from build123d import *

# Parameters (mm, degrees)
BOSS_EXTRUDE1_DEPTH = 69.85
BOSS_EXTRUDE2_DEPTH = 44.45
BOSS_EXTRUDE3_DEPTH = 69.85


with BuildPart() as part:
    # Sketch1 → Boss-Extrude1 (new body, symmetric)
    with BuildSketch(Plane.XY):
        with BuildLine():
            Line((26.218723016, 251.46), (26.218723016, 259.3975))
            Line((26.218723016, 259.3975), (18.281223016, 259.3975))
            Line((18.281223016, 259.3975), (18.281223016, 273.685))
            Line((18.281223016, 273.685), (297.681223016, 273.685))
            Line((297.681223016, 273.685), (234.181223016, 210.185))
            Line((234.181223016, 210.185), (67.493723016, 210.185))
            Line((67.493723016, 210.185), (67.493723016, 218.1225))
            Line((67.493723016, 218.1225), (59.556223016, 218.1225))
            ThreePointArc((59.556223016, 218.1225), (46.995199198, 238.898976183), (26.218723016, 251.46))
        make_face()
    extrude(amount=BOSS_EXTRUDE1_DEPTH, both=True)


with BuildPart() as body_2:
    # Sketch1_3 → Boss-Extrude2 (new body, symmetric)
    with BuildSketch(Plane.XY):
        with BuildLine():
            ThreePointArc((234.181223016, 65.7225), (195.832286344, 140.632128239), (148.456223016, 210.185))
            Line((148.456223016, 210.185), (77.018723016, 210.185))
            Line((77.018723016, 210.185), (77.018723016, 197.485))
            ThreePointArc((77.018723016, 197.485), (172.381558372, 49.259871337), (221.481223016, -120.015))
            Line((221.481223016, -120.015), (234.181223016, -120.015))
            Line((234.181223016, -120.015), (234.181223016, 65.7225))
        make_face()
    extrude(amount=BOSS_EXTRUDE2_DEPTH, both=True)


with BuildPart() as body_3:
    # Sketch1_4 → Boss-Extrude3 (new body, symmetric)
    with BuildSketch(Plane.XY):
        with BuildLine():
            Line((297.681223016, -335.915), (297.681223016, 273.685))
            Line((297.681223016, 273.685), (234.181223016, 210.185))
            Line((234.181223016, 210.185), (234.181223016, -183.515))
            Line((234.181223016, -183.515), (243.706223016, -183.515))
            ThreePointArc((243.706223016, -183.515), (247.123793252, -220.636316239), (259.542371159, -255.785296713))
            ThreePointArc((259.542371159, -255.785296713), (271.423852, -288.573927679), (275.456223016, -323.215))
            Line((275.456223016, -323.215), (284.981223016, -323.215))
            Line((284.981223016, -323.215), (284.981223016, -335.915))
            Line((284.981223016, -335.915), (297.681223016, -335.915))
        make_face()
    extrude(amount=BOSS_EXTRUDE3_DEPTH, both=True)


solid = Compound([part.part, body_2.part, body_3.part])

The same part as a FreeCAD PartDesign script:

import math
import FreeCAD as App
import Part
import Sketcher

V = App.Vector
Q = App.Units.Quantity

doc = App.newDocument("Part")
body = doc.addObject("PartDesign::Body", "Body")

# Sketch on XY plane
sketch1 = body.newObject("Sketcher::SketchObject", "Sketch")
sketch1.AttachmentSupport = (doc.getObject("XY_Plane"), [""])
sketch1.MapMode = "FlatFace"
sketch1.addGeometry(Part.LineSegment(V(26, 259, 0), V(26, 251, 0)), False)
sketch1.addGeometry(Part.ArcOfCircle(Part.Circle(V(11, 203, 0), V(0, 0, 1), 51), math.radians(17), math.radians(73)), False)
sketch1.addGeometry(Part.LineSegment(V(60, 218, 0), V(67, 218, 0)), False)
sketch1.addGeometry(Part.LineSegment(V(67, 218, 0), V(67, 210, 0)), False)
sketch1.addGeometry(Part.LineSegment(V(67, 210, 0), V(234, 210, 0)), False)
sketch1.addGeometry(Part.LineSegment(V(234, 210, 0), V(298, 274, 0)), False)
sketch1.addGeometry(Part.LineSegment(V(298, 274, 0), V(18, 274, 0)), False)
sketch1.addGeometry(Part.LineSegment(V(18, 274, 0), V(18, 259, 0)), False)
sketch1.addGeometry(Part.LineSegment(V(18, 259, 0), V(26, 259, 0)), False)
sketch1.addConstraint(Sketcher.Constraint("Coincident", 0, 2, 1, 2))
sketch1.addConstraint(Sketcher.Constraint("Coincident", 1, 1, 2, 1))
sketch1.addConstraint(Sketcher.Constraint("Coincident", 2, 2, 3, 1))
sketch1.addConstraint(Sketcher.Constraint("Coincident", 3, 2, 4, 1))
sketch1.addConstraint(Sketcher.Constraint("Coincident", 4, 2, 5, 1))
sketch1.addConstraint(Sketcher.Constraint("Coincident", 5, 2, 6, 1))
sketch1.addConstraint(Sketcher.Constraint("Coincident", 6, 2, 7, 1))
sketch1.addConstraint(Sketcher.Constraint("Coincident", 7, 2, 8, 1))
sketch1.addConstraint(Sketcher.Constraint("Coincident", 8, 2, 0, 1))
sketch1.addConstraint(Sketcher.Constraint("Vertical", 0))
sketch1.addConstraint(Sketcher.Constraint("Horizontal", 2))
sketch1.addConstraint(Sketcher.Constraint("Vertical", 3))
sketch1.addConstraint(Sketcher.Constraint("Horizontal", 4))
sketch1.addConstraint(Sketcher.Constraint("Horizontal", 6))
sketch1.addConstraint(Sketcher.Constraint("Vertical", 7))
sketch1.addConstraint(Sketcher.Constraint("Horizontal", 8))
sketch1.addConstraint(Sketcher.Constraint("Equal", 2, 8))
sketch1.addConstraint(Sketcher.Constraint("Equal", 8, 0))
sketch1.addConstraint(Sketcher.Constraint("Equal", 0, 3))
sketch1.addConstraint(Sketcher.Constraint("DistanceX", 6, 2, 6, 1, Q("11 in")))
sketch1.addConstraint(Sketcher.Constraint("Angle", 5, Q("45 deg")))
sketch1.addConstraint(Sketcher.Constraint("DistanceY", -1, 1, 0, 2, Q("9.9 in")))
sketch1.addConstraint(Sketcher.Constraint("DistanceX", 4, 2, 5, 2, Q("2.5 in")))
sketch1.addConstraint(Sketcher.Constraint("DistanceX", 2, 1, 2, 2, Q("0.3125 in")))
sketch1.addConstraint(Sketcher.Constraint("DistanceX", 4, 1, 4, 2, Q("6.5625 in")))
sketch1.addConstraint(Sketcher.Constraint("DistanceY", 7, 2, 7, 1, Q("0.5625 in")))
sketch1.addConstraint(Sketcher.Constraint("Radius", 1, Q("50.733412 mm")))
sketch1.addConstraint(Sketcher.Constraint("DistanceX", -1, 1, 1, 3, Q("11.12126 mm")))
pad1 = body.newObject("PartDesign::Pad", "Pad")
pad1.Profile = sketch1
pad1.Length = Q("5.5 in")
pad1.Midplane = True
body2 = doc.addObject("PartDesign::Body", "Body001")

# Sketch on XY plane
sketch2 = body2.newObject("Sketcher::SketchObject", "Sketch001")
sketch2.AttachmentSupport = (doc.getObject("XY_Plane001"), [""])
sketch2.MapMode = "FlatFace"
sketch2.addGeometry(Part.ArcOfCircle(Part.Circle(V(-384, -204, 0), V(0, 0, 1), 675), math.radians(23.53), math.radians(37.84)), False)
sketch2.addGeometry(Part.LineSegment(V(148, 210, 0), V(77, 210, 0)), False)
sketch2.addGeometry(Part.LineSegment(V(77, 210, 0), V(77, 197, 0)), False)
sketch2.addGeometry(Part.ArcOfCircle(Part.Circle(V(-384, -204, 0), V(0, 0, 1), 611), math.radians(8), math.radians(41)), False)
sketch2.addGeometry(Part.LineSegment(V(221, -120, 0), V(234, -120, 0)), False)
sketch2.addGeometry(Part.LineSegment(V(234, -120, 0), V(234, 66, 0)), False)
sketch2.addConstraint(Sketcher.Constraint("Coincident", 0, 2, 1, 1))
sketch2.addConstraint(Sketcher.Constraint("Coincident", 1, 2, 2, 1))
sketch2.addConstraint(Sketcher.Constraint("Coincident", 2, 2, 3, 2))
sketch2.addConstraint(Sketcher.Constraint("Coincident", 3, 1, 4, 1))
sketch2.addConstraint(Sketcher.Constraint("Coincident", 4, 2, 5, 1))
sketch2.addConstraint(Sketcher.Constraint("Coincident", 5, 2, 0, 1))
sketch2.addConstraint(Sketcher.Constraint("Horizontal", 1))
sketch2.addConstraint(Sketcher.Constraint("Vertical", 2))
sketch2.addConstraint(Sketcher.Constraint("Horizontal", 4))
sketch2.addConstraint(Sketcher.Constraint("Vertical", 5))
sketch2.addConstraint(Sketcher.Constraint("Equal", 4, 2))
sketch2.addConstraint(Sketcher.Constraint("DistanceX", 4, 1, 4, 2, Q("0.5 in")))
sketch2.addConstraint(Sketcher.Constraint("Radius", 0, Q("26.5625 in")))
sketch2.addConstraint(Sketcher.Constraint("Radius", 3, Q("24.0625 in")))
sketch2.addConstraint(Sketcher.Constraint("DistanceY", 4, 2, 1, 2, Q("13 in")))
sketch2.addConstraint(Sketcher.Constraint("DistanceX", 1, 2, 1, 1, Q("2.8125 in")))
sketch2.addConstraint(Sketcher.Constraint("DistanceY", 5, 1, 5, 2, Q("7.3125 in")))
sketch2.addConstraint(Sketcher.Constraint("DistanceY", -1, 1, 1, 2, Q("8.275 in")))
sketch2.addConstraint(Sketcher.Constraint("DistanceX", 2, 2, 3, 1, Q("5.6875 in")))
sketch2.addConstraint(Sketcher.Constraint("DistanceX", 0, 3, -1, 1, Q("384.388412 mm")))
pad2 = body2.newObject("PartDesign::Pad", "Pad001")
pad2.Profile = sketch2
pad2.Length = Q("3.5 in")
pad2.Midplane = True
body3 = doc.addObject("PartDesign::Body", "Body002")

# Sketch on XY plane
sketch3 = body3.newObject("Sketcher::SketchObject", "Sketch002")
sketch3.AttachmentSupport = (doc.getObject("XY_Plane002"), [""])
sketch3.MapMode = "FlatFace"
sketch3.addGeometry(Part.LineSegment(V(298, -336, 0), V(298, 274, 0)), False)
sketch3.addGeometry(Part.LineSegment(V(298, 274, 0), V(234, 210, 0)), False)
sketch3.addGeometry(Part.LineSegment(V(234, 210, 0), V(234, -184, 0)), False)
sketch3.addGeometry(Part.LineSegment(V(234, -184, 0), V(244, -184, 0)), False)
sketch3.addGeometry(Part.ArcOfCircle(Part.Circle(V(394, -188, 0), V(0, 0, 1), 151), math.radians(178), math.radians(207)), False)
sketch3.addGeometry(Part.ArcOfCircle(Part.Circle(V(125, -323, 0), V(0, 0, 1), 151), math.radians(0), math.radians(27)), False)
sketch3.addGeometry(Part.LineSegment(V(275, -323, 0), V(285, -323, 0)), False)
sketch3.addGeometry(Part.LineSegment(V(285, -323, 0), V(285, -336, 0)), False)
sketch3.addGeometry(Part.LineSegment(V(285, -336, 0), V(298, -336, 0)), False)
sketch3.addConstraint(Sketcher.Constraint("Coincident", 0, 2, 1, 1))
sketch3.addConstraint(Sketcher.Constraint("Coincident", 1, 2, 2, 1))
sketch3.addConstraint(Sketcher.Constraint("Coincident", 2, 2, 3, 1))
sketch3.addConstraint(Sketcher.Constraint("Coincident", 3, 2, 4, 1))
sketch3.addConstraint(Sketcher.Constraint("Tangent", 4, 2, 5, 2))
sketch3.addConstraint(Sketcher.Constraint("Coincident", 5, 1, 6, 1))
sketch3.addConstraint(Sketcher.Constraint("Coincident", 6, 2, 7, 1))
sketch3.addConstraint(Sketcher.Constraint("Coincident", 7, 2, 8, 1))
sketch3.addConstraint(Sketcher.Constraint("Coincident", 8, 2, 0, 1))
sketch3.addConstraint(Sketcher.Constraint("Vertical", 0))
sketch3.addConstraint(Sketcher.Constraint("Vertical", 2))
sketch3.addConstraint(Sketcher.Constraint("Horizontal", 3))
sketch3.addConstraint(Sketcher.Constraint("Horizontal", 6))
sketch3.addConstraint(Sketcher.Constraint("Vertical", 7))
sketch3.addConstraint(Sketcher.Constraint("Horizontal", 8))
sketch3.addConstraint(Sketcher.Constraint("Equal", 4, 5))
sketch3.addConstraint(Sketcher.Constraint("Equal", 3, 6))
sketch3.addConstraint(Sketcher.Constraint("Equal", 8, 7))
sketch3.addConstraint(Sketcher.Constraint("DistanceY", 0, 1, 0, 2, Q("24 in")))
sketch3.addConstraint(Sketcher.Constraint("DistanceX", 8, 1, 8, 2, Q("0.5 in")))
sketch3.addConstraint(Sketcher.Constraint("DistanceY", 2, 2, 2, 1, Q("15.5 in")))
sketch3.addConstraint(Sketcher.Constraint("Angle", 1, Q("-135 deg")))
sketch3.addConstraint(Sketcher.Constraint("Radius", 4, Q("5.9375 in")))
sketch3.addConstraint(Sketcher.Constraint("DistanceY", 5, 3, 1, 2, Q("21 in")))
sketch3.addConstraint(Sketcher.Constraint("DistanceY", 2, 2, 0, 2, Q("18 in")))
sketch3.addConstraint(Sketcher.Constraint("DistanceX", 3, 1, 3, 2, Q("0.375 in")))
sketch3.addConstraint(Sketcher.Constraint("DistanceY", 5, 3, -1, 1, Q("12.725 in")))
sketch3.addConstraint(Sketcher.Constraint("DistanceX", -1, 1, 4, 3, Q("394.441019 mm")))
pad3 = body3.newObject("PartDesign::Pad", "Pad002")
pad3.Profile = sketch3
pad3.Length = Q("5.5 in")
pad3.Midplane = True

doc.recompute()
